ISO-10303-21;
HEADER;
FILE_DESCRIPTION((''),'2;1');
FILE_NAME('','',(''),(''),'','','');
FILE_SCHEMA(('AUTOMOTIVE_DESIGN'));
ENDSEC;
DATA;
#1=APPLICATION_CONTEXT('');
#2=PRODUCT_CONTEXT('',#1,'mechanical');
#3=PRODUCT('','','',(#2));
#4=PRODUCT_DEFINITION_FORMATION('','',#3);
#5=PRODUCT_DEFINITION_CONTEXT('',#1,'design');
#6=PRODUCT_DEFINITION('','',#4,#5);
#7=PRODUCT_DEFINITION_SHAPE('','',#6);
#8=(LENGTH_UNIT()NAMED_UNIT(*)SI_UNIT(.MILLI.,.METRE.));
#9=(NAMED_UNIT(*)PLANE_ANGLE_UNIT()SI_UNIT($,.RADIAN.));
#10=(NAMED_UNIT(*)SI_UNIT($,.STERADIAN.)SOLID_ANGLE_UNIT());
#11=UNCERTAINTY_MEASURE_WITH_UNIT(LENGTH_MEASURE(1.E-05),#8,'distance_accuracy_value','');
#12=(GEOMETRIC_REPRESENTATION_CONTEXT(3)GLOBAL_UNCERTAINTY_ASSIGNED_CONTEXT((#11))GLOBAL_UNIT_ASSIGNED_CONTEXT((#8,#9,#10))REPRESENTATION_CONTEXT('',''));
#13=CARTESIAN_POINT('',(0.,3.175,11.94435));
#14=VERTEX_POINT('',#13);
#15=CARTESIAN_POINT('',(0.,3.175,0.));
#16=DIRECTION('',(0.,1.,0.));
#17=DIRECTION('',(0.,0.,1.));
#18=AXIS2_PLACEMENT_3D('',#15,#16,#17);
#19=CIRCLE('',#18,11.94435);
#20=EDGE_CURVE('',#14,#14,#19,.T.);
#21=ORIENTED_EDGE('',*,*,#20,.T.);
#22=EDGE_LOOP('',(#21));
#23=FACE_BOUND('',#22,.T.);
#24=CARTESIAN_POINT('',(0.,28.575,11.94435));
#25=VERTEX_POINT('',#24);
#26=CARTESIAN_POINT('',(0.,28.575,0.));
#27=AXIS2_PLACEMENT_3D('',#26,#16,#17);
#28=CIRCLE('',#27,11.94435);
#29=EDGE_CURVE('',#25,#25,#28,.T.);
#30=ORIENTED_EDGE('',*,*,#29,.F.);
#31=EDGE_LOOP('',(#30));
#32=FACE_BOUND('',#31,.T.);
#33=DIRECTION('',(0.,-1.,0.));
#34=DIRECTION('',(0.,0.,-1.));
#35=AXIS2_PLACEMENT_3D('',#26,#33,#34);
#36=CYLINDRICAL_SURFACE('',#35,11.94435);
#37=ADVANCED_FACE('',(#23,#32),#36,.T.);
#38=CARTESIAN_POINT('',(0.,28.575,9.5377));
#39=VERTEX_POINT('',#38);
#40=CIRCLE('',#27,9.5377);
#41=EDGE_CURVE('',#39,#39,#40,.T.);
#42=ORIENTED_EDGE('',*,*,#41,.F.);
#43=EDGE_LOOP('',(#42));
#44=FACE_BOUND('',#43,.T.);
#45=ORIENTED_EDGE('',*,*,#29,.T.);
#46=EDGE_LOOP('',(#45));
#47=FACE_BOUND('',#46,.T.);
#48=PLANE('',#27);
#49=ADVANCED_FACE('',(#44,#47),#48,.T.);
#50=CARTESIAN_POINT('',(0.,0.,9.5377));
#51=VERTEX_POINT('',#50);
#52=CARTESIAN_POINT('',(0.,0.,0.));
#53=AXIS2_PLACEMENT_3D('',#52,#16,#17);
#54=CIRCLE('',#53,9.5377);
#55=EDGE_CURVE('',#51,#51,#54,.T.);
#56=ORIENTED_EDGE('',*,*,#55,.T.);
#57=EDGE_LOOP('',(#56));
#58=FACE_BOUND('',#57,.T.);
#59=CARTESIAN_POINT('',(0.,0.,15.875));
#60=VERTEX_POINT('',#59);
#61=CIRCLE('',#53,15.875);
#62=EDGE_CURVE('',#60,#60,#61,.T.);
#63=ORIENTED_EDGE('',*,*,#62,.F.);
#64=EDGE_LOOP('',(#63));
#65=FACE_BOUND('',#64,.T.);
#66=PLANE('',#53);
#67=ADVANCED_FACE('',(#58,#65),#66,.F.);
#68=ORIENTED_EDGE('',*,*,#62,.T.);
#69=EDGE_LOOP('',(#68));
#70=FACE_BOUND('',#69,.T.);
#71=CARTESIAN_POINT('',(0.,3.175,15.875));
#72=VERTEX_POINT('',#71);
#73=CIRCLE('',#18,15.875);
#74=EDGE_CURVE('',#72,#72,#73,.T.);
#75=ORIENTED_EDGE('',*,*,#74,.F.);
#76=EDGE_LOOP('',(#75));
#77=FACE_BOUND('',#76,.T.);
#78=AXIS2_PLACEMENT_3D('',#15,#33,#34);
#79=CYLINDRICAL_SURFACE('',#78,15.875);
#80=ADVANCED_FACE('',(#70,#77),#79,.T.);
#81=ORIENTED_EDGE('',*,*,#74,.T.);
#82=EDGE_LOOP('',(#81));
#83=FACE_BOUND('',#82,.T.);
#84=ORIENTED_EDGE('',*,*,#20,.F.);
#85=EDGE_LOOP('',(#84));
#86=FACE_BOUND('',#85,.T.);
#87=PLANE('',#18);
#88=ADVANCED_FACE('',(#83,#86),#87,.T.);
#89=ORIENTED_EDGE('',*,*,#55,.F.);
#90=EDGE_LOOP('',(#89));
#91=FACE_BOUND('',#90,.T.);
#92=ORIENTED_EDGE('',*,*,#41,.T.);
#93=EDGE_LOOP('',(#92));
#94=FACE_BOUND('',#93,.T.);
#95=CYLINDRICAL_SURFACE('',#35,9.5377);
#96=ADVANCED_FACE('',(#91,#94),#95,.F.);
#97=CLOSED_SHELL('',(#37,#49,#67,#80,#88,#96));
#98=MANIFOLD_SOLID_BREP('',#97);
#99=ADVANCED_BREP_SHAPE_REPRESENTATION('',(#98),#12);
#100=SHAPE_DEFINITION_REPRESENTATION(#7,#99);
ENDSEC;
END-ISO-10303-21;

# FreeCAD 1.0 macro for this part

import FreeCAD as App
import Part
import Sketcher

V = App.Vector
Q = App.Units.Quantity

doc = App.newDocument("Part")
body = doc.addObject("PartDesign::Body", "Body")

# Sketch on XZ plane
sketch1 = body.newObject("Sketcher::SketchObject", "Sketch")
sketch1.AttachmentSupport = (doc.getObject("XZ_Plane"), [""])
sketch1.MapMode = "FlatFace"
sketch1.addGeometry([
    Part.Circle(V(0, 0, 0), V(0, 0, 1), 11.94435),
    Part.Circle(V(0, 0, 0), V(0, 0, 1), 9.5377),
], False)
sketch1.addConstraint([
    Sketcher.Constraint("Coincident", 0, 3, -1, 1),
    Sketcher.Constraint("Coincident", 1, 3, -1, 1),
    Sketcher.Constraint("Diameter", 1, Q("0.751 in")),
    Sketcher.Constraint("Diameter", 0, Q("0.9405 in")),
])
pad1 = body.newObject("PartDesign::Pad", "Pad")
pad1.Profile = sketch1
pad1.Length = Q("1.125 in")
pad1.Reversed = True

# Sketch on XZ plane
sketch2 = body.newObject("Sketcher::SketchObject", "Sketch001")
sketch2.AttachmentSupport = (doc.getObject("XZ_Plane"), [""])
sketch2.MapMode = "FlatFace"
sketch2.addGeometry([
    Part.Circle(V(0, 0, 0), V(0, 0, 1), 15.875),
    Part.Circle(V(0, 0, 0), V(0, 0, 1), 11.94435),
], False)
sketch2.addConstraint([
    Sketcher.Constraint("Coincident", 0, 3, -1, 1),
    Sketcher.Constraint("Coincident", 1, 3, -1, 1),
    Sketcher.Constraint("Diameter", 0, Q("1.25 in")),
    Sketcher.Constraint("Diameter", 1, Q("0.9405 in")),
])
pad2 = body.newObject("PartDesign::Pad", "Pad001")
pad2.Profile = sketch2
pad2.Length = Q("0.125 in")
pad2.Reversed = True

doc.recompute()
